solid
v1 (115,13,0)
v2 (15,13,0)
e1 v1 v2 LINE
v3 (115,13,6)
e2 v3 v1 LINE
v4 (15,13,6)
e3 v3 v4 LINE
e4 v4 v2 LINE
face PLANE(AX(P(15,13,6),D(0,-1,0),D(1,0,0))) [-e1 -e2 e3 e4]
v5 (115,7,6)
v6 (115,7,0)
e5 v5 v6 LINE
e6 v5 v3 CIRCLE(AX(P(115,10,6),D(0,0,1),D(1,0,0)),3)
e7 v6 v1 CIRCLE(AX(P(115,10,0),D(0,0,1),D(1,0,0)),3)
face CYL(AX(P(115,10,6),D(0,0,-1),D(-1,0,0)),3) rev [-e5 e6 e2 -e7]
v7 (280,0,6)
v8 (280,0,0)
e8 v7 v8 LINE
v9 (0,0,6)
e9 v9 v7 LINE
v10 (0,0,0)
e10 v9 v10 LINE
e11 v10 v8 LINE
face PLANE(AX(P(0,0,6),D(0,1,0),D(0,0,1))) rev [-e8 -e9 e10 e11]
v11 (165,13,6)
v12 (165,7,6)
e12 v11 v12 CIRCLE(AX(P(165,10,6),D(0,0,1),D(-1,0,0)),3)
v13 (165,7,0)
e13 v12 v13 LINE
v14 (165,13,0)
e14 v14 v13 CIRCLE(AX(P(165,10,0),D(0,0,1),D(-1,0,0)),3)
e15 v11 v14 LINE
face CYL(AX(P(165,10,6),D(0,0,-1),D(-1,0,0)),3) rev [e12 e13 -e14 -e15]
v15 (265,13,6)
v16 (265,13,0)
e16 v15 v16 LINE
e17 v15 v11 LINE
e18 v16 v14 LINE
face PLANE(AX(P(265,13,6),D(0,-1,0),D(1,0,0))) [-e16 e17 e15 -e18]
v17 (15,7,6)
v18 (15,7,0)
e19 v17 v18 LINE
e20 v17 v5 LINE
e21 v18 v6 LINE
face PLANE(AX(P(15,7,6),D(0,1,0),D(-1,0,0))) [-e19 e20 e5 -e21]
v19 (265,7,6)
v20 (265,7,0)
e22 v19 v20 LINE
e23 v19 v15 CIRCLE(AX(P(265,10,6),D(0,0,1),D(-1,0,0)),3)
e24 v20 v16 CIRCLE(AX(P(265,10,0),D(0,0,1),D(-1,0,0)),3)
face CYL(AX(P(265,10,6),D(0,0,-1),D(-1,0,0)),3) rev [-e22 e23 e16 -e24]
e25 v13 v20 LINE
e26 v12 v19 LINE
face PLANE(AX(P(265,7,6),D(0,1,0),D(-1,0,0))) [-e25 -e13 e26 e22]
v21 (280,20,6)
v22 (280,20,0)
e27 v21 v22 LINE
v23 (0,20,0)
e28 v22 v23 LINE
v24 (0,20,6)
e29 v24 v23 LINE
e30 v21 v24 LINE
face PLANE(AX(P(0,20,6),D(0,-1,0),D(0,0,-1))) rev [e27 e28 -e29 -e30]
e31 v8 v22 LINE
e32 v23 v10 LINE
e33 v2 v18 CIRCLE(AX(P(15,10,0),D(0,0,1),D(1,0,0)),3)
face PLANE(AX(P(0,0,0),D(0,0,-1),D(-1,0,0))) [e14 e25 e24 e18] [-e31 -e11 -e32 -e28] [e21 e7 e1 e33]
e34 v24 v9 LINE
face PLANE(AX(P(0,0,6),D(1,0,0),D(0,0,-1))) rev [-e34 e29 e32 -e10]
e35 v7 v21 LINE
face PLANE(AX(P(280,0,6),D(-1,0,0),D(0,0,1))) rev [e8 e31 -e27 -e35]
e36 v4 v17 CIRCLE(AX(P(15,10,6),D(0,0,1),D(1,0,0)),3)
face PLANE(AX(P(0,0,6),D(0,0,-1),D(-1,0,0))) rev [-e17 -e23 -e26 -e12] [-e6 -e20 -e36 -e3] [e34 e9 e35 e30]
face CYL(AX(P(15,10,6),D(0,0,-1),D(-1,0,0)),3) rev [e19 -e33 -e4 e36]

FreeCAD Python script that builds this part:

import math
import FreeCAD as App
import Part
import Sketcher
Q = App.Units.Quantity

doc = App.newDocument("Part")
body = doc.addObject("PartDesign::Body", "Body")

sketch1 = doc.addObject("Sketcher::SketchObject", "Sketch")
body.addObject(sketch1)
sketch1.AttachmentSupport = (doc.XY_Plane, [""])
sketch1.MapMode = "FlatFace"
sketch1.addGeometry(Part.LineSegment(App.Vector(0, 20, 0), App.Vector(0, 0, 0)), False)
sketch1.addGeometry(Part.LineSegment(App.Vector(0, 0, 0), App.Vector(280, 0, 0)), False)
sketch1.addGeometry(Part.LineSegment(App.Vector(280, 0, 0), App.Vector(280, 20, 0)), False)
sketch1.addGeometry(Part.LineSegment(App.Vector(280, 20, 0), App.Vector(0, 20, 0)), False)
sketch1.addGeometry(Part.ArcOfCircle(Part.Circle(App.Vector(15, 10, 0), App.Vector(0, 0, 1), 3), math.radians(90), math.radians(270)), False)
sketch1.addGeometry(Part.LineSegment(App.Vector(15, 13, 0), App.Vector(115, 13, 0)), False)
sketch1.addGeometry(Part.ArcOfCircle(Part.Circle(App.Vector(115, 10, 0), App.Vector(0, 0, 1), 3), math.radians(-90), math.radians(90)), False)
sketch1.addGeometry(Part.LineSegment(App.Vector(115, 7, 0), App.Vector(15, 7, 0)), False)
sketch1.addGeometry(Part.LineSegment(App.Vector(165, 13, 0), App.Vector(265, 13, 0)), False)
sketch1.addGeometry(Part.ArcOfCircle(Part.Circle(App.Vector(265, 10, 0), App.Vector(0, 0, 1), 3), math.radians(-90), math.radians(90)), False)
sketch1.addGeometry(Part.LineSegment(App.Vector(265, 7, 0), App.Vector(165, 7, 0)), False)
sketch1.addGeometry(Part.ArcOfCircle(Part.Circle(App.Vector(165, 10, 0), App.Vector(0, 0, 1), 3), math.radians(90), math.radians(270)), False)
sketch1.addConstraint(Sketcher.Constraint("Coincident", 0, 2, 1, 1))
sketch1.addConstraint(Sketcher.Constraint("Coincident", 1, 2, 2, 1))
sketch1.addConstraint(Sketcher.Constraint("Coincident", 2, 2, 3, 1))
sketch1.addConstraint(Sketcher.Constraint("Coincident", 3, 2, 0, 1))
sketch1.addConstraint(Sketcher.Constraint("Tangent", 4, 1, 5, 1))
sketch1.addConstraint(Sketcher.Constraint("Tangent", 5, 2, 6, 2))
sketch1.addConstraint(Sketcher.Constraint("Tangent", 6, 1, 7, 1))
sketch1.addConstraint(Sketcher.Constraint("Tangent", 7, 2, 4, 2))
sketch1.addConstraint(Sketcher.Constraint("Tangent", 8, 2, 9, 2))
sketch1.addConstraint(Sketcher.Constraint("Tangent", 9, 1, 10, 1))
sketch1.addConstraint(Sketcher.Constraint("Tangent", 10, 2, 11, 2))
sketch1.addConstraint(Sketcher.Constraint("Tangent", 11, 1, 8, 1))
sketch1.addConstraint(Sketcher.Constraint("Vertical", 0))
sketch1.addConstraint(Sketcher.Constraint("Horizontal", 1))
sketch1.addConstraint(Sketcher.Constraint("Vertical", 2))
sketch1.addConstraint(Sketcher.Constraint("Horizontal", 3))
sketch1.addConstraint(Sketcher.Constraint("Horizontal", 5))
sketch1.addConstraint(Sketcher.Constraint("Horizontal", 7))
sketch1.addConstraint(Sketcher.Constraint("Horizontal", 8))
sketch1.addConstraint(Sketcher.Constraint("Horizontal", 10))
sketch1.addConstraint(Sketcher.Constraint("Coincident", 0, 2, -1, 1))
sketch1.addConstraint(Sketcher.Constraint("Equal", 6, 9))
sketch1.addConstraint(Sketcher.Constraint("Horizontal", 6, 3, 9, 3))
sketch1.addConstraint(Sketcher.Constraint("Equal", 7, 8))
sketch1.addConstraint(Sketcher.Constraint("Radius", 4, Q("3 mm")))
sketch1.addConstraint(Sketcher.Constraint("DistanceX", 1, 1, 1, 2, Q("280 mm")))
sketch1.addConstraint(Sketcher.Constraint("DistanceX", 5, 1, 5, 2, Q("100 mm")))
sketch1.addConstraint(Sketcher.Constraint("DistanceY", 0, 2, 0, 1, Q("20 mm")))
sketch1.addConstraint(Sketcher.Constraint("DistanceX", -1, 1, 4, 3, Q("15 mm")))
sketch1.addConstraint(Sketcher.Constraint("DistanceY", -1, 1, 4, 3, Q("10 mm")))
sketch1.addConstraint(Sketcher.Constraint("DistanceX", -1, 1, 9, 3, Q("265 mm")))
pad1 = doc.addObject("PartDesign::Pad", "Pad")
body.addObject(pad1)
pad1.Profile = sketch1
pad1.Length = 6

doc.recompute()
